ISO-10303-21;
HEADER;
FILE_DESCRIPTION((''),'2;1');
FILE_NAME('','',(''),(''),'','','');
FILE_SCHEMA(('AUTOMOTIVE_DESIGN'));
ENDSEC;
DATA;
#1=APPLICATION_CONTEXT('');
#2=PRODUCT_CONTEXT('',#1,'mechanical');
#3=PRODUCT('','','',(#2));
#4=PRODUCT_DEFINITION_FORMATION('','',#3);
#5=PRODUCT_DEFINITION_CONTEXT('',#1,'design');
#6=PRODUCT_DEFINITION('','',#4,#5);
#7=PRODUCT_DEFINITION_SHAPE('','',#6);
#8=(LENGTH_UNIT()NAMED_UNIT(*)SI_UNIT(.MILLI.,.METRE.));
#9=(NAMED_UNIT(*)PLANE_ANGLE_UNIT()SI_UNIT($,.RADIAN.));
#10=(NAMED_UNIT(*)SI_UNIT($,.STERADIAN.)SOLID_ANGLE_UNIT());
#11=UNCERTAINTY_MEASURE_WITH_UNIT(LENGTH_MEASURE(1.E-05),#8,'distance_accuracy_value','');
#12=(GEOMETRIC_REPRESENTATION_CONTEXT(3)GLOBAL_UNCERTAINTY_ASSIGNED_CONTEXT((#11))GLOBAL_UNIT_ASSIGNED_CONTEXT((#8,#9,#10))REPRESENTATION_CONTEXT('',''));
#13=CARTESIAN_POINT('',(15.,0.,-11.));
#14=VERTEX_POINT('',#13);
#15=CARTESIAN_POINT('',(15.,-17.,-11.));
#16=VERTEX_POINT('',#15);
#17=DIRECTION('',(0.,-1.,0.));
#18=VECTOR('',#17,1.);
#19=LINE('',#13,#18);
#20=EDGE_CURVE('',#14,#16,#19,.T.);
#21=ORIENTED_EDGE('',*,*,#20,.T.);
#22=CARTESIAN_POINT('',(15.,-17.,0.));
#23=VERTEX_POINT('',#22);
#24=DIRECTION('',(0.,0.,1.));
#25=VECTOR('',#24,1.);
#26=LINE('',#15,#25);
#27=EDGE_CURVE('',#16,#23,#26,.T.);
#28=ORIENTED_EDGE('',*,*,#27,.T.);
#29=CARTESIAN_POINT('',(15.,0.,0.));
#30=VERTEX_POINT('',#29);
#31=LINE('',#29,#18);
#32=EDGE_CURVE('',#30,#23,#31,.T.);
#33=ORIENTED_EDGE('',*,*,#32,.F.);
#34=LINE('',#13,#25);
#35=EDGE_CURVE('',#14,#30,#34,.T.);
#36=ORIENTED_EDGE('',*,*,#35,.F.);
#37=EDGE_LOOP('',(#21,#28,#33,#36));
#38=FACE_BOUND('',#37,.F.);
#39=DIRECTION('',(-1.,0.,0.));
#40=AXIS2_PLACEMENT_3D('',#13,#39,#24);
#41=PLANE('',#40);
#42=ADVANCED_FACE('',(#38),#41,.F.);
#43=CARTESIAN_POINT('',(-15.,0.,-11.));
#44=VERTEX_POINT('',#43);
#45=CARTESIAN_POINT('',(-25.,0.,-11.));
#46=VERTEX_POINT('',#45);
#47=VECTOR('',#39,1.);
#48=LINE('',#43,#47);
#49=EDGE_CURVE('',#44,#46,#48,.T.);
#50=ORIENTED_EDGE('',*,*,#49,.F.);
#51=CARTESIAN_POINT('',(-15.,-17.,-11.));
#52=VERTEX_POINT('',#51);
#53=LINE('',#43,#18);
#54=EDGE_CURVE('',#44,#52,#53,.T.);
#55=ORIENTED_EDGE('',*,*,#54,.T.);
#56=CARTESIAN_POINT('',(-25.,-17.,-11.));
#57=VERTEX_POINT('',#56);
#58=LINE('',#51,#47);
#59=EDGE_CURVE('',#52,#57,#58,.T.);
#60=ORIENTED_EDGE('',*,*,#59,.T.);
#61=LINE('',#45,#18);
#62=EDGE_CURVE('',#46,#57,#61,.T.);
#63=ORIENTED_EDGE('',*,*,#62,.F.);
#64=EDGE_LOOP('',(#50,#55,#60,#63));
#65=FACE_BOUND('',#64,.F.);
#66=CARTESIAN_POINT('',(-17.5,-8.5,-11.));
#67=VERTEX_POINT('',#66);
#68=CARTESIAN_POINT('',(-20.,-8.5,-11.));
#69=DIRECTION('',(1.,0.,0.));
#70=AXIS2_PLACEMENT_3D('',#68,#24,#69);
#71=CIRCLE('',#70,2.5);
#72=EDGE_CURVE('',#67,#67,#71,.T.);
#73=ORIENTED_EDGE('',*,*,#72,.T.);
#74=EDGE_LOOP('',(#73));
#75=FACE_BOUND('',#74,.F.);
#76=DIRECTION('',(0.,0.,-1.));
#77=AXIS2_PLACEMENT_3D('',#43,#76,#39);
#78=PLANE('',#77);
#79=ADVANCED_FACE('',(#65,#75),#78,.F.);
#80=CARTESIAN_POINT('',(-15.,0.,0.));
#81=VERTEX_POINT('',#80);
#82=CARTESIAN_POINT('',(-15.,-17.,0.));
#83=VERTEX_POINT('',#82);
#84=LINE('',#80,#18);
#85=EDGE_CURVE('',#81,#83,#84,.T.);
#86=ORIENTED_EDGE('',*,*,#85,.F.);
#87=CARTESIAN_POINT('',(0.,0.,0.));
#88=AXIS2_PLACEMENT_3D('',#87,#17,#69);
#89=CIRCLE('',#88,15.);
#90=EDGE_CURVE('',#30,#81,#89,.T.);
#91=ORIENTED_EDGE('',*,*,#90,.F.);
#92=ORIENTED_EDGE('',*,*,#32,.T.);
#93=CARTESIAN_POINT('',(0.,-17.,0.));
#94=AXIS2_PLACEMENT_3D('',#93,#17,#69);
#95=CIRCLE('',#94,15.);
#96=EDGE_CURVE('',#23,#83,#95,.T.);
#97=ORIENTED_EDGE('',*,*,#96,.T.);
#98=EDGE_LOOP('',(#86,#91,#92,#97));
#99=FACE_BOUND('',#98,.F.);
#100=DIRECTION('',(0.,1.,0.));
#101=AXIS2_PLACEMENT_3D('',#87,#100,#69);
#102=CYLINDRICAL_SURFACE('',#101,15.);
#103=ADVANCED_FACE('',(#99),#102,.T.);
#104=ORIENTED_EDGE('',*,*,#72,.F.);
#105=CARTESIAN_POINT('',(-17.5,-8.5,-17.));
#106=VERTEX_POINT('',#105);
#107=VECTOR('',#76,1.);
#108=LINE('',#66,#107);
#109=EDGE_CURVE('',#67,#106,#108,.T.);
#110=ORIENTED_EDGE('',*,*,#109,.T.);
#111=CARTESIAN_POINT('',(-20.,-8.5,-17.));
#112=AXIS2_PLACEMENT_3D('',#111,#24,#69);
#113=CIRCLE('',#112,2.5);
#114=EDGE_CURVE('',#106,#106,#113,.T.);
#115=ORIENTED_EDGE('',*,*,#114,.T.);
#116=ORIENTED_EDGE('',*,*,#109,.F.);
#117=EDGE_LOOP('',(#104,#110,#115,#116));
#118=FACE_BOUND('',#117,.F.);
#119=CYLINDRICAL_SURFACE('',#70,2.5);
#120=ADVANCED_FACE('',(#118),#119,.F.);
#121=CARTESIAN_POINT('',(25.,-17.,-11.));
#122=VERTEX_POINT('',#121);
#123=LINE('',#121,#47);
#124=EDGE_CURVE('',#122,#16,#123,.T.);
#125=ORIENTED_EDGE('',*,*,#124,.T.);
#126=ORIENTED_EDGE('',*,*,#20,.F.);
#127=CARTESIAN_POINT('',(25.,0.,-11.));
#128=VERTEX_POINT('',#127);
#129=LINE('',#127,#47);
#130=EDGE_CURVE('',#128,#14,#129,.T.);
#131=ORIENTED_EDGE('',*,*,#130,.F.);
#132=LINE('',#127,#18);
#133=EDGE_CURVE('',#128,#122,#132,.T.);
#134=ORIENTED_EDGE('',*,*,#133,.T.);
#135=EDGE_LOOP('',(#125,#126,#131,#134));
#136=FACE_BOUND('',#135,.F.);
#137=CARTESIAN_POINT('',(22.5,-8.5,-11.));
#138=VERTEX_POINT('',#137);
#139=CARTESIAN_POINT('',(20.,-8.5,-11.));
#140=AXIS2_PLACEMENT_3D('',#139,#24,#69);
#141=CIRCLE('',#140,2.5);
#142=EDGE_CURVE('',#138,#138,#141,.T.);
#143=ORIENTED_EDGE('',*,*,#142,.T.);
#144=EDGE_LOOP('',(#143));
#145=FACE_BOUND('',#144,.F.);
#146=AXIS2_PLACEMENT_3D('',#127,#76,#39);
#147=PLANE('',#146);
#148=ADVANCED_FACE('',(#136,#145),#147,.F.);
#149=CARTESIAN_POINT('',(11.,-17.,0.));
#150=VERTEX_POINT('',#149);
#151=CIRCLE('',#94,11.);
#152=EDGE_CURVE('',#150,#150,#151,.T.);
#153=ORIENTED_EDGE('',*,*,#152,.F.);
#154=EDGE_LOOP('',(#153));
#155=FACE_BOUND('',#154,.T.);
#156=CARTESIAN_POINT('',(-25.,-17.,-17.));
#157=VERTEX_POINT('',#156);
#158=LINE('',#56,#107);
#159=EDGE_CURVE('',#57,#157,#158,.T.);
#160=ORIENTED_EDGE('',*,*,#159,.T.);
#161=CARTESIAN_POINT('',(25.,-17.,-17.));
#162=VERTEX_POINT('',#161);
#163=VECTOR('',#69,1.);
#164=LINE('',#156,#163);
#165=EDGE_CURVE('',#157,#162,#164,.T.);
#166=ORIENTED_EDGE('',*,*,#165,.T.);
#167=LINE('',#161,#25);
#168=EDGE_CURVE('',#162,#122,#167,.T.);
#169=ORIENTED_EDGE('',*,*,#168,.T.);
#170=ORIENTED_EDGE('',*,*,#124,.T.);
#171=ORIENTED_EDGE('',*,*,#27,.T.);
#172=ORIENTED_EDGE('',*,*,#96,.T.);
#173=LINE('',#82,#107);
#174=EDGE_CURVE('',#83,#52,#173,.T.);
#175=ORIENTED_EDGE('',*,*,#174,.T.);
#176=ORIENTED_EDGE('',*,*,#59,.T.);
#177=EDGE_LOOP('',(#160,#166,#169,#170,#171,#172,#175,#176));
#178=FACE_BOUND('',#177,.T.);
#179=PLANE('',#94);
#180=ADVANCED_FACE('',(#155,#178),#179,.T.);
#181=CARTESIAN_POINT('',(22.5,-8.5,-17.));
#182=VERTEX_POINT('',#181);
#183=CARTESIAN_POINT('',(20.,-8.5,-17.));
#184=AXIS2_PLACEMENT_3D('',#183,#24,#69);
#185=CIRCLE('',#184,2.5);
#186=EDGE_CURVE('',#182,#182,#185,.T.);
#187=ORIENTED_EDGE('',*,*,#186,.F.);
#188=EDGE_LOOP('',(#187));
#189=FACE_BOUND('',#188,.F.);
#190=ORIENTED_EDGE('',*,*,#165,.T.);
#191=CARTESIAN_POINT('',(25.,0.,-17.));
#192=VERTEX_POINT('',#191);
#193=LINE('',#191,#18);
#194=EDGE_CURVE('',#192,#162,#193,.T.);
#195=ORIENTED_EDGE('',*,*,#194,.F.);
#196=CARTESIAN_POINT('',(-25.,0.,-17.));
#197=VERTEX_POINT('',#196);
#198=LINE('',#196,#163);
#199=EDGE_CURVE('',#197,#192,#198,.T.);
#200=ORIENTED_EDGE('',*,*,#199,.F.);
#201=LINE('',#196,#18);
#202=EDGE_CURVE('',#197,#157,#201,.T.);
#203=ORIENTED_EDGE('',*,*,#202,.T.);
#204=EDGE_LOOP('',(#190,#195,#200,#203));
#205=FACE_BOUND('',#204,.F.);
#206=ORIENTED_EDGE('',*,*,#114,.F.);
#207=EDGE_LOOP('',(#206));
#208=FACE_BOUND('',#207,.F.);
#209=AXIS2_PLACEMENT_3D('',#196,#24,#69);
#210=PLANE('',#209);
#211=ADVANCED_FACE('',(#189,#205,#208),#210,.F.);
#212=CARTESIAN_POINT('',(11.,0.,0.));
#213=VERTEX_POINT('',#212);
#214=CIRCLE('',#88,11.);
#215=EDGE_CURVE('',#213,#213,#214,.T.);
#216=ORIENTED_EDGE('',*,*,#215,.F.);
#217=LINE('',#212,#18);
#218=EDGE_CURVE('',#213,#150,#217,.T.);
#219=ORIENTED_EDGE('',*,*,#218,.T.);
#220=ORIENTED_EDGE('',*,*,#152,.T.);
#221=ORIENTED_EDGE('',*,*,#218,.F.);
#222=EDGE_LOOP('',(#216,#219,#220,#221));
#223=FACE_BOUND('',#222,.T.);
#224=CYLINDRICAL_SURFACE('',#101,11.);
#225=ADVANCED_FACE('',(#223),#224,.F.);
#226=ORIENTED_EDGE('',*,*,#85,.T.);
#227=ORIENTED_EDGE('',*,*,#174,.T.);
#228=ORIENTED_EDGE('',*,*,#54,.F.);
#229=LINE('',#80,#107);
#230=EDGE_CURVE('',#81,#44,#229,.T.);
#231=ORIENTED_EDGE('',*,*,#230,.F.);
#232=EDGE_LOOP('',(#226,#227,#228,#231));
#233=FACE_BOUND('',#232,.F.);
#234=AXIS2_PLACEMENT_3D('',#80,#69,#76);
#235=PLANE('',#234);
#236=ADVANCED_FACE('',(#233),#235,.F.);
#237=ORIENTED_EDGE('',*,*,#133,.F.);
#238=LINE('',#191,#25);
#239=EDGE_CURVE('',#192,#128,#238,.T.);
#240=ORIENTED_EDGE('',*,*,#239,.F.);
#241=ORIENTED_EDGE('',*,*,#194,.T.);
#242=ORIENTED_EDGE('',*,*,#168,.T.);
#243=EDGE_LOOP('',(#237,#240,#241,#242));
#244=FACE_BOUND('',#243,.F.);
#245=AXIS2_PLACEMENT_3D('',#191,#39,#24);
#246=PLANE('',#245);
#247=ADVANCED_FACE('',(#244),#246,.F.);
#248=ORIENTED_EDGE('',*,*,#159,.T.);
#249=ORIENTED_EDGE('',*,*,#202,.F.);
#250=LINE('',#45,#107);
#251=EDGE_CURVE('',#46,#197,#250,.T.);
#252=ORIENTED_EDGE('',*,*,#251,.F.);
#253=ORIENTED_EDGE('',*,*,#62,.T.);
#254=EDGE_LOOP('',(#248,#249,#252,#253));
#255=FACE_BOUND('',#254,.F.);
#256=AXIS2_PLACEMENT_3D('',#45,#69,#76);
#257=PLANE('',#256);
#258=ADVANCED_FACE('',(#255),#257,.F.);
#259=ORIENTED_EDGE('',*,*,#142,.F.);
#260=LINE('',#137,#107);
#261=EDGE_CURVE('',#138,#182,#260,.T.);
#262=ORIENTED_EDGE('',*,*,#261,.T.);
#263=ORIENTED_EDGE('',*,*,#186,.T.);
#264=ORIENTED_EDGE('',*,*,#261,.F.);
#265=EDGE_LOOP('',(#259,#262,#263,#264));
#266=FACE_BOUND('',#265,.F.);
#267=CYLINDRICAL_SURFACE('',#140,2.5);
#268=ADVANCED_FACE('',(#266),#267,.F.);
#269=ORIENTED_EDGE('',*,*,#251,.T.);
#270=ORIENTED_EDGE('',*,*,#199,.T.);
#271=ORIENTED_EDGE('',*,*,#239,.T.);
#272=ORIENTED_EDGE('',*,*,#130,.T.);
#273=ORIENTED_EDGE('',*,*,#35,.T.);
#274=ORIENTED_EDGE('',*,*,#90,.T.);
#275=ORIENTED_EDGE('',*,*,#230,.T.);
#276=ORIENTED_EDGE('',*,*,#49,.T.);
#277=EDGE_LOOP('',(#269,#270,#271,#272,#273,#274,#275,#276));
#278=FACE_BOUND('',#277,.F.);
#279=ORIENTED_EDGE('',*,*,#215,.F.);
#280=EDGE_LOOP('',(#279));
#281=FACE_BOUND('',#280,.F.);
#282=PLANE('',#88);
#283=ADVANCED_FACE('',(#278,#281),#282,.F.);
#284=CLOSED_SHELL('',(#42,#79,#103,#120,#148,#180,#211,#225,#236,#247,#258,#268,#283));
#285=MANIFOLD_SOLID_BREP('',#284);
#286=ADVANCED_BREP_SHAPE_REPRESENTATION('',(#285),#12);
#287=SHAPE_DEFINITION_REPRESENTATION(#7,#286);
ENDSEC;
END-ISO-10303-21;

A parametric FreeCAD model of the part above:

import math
import FreeCAD as App
import Part
import Sketcher

V = App.Vector

doc = App.newDocument("Part")
params = doc.addObject("Spreadsheet::Sheet", "Params")
for row, (alias, value) in enumerate([
    ("sketch1_diameter", "22 mm"),
    ("sketch1_radius", "15 mm"),
    ("sketch1_width", "10 mm"),
    ("sketch1_height", "11 mm"),
    ("sketch1_height2", "6 mm"),
    ("pad1_length", "17 mm"),
    ("sketch2_diameter", "5 mm"),
], start=1):
    params.set(f"A{row}", alias)
    params.set(f"B{row}", "=" + value)
    params.setAlias(f"B{row}", alias)

body = doc.addObject("PartDesign::Body", "Body")

# Sketch on XZ plane
sketch1 = body.newObject("Sketcher::SketchObject", "Sketch")
sketch1.AttachmentSupport = (doc.getObject("XZ_Plane"), [""])
sketch1.MapMode = "FlatFace"
sketch1.addGeometry([
    Part.ArcOfCircle(Part.Circle(V(0, 0, 0), V(0, 0, 1), 15), math.radians(0), math.radians(180)),  # 0
    Part.LineSegment(V(-15, 0, 0), V(-15, -11, 0)),  # 1
    Part.LineSegment(V(-15, -11, 0), V(-25, -11, 0)),  # 2
    Part.LineSegment(V(-25, -11, 0), V(-25, -17, 0)),  # 3
    Part.LineSegment(V(-25, -17, 0), V(25, -17, 0)),  # 4
    Part.LineSegment(V(25, -17, 0), V(25, -11, 0)),  # 5
    Part.LineSegment(V(25, -11, 0), V(15, -11, 0)),  # 6
    Part.LineSegment(V(15, -11, 0), V(15, 0, 0)),  # 7
    Part.Circle(V(0, 0, 0), V(0, 0, 1), 11),  # 8
], False)
sketch1.addConstraint([
    Sketcher.Constraint("Tangent", 0, 2, 1, 1),
    Sketcher.Constraint("Coincident", 1, 2, 2, 1),
    Sketcher.Constraint("Coincident", 2, 2, 3, 1),
    Sketcher.Constraint("Coincident", 3, 2, 4, 1),
    Sketcher.Constraint("Coincident", 4, 2, 5, 1),
    Sketcher.Constraint("Coincident", 5, 2, 6, 1),
    Sketcher.Constraint("Coincident", 6, 2, 7, 1),
    Sketcher.Constraint("Tangent", 7, 2, 0, 1),
    Sketcher.Constraint("Vertical", 1),
    Sketcher.Constraint("Horizontal", 2),
    Sketcher.Constraint("Vertical", 3),
    Sketcher.Constraint("Horizontal", 4),
    Sketcher.Constraint("Vertical", 5),
    Sketcher.Constraint("Horizontal", 6),
    Sketcher.Constraint("Vertical", 7),
    Sketcher.Constraint("Coincident", 0, 3, -1, 1),
    Sketcher.Constraint("Coincident", 8, 3, -1, 1),
    Sketcher.Constraint("Symmetric", 2, 2, 5, 2, -2),
    Sketcher.Constraint("Diameter", 8, 22.0),
    Sketcher.Constraint("Radius", 0, 15.0),
    Sketcher.Constraint("DistanceX", 2, 2, 2, 1, 10.0),
    Sketcher.Constraint("DistanceY", 1, 2, 1, 1, 11.0),
    Sketcher.Constraint("DistanceY", 3, 2, 3, 1, 6.0),
])
sketch1.setExpression("Constraints[18]", "Params.sketch1_diameter")
sketch1.setExpression("Constraints[19]", "Params.sketch1_radius")
sketch1.setExpression("Constraints[20]", "Params.sketch1_width")
sketch1.setExpression("Constraints[21]", "Params.sketch1_height")
sketch1.setExpression("Constraints[22]", "Params.sketch1_height2")
pad1 = body.newObject("PartDesign::Pad", "Pad")
pad1.Profile = sketch1
pad1.setExpression("Length", "Params.pad1_length")

# Sketch on XY plane
sketch2 = body.newObject("Sketcher::SketchObject", "Sketch001")
sketch2.AttachmentSupport = (doc.getObject("XY_Plane"), [""])
sketch2.MapMode = "FlatFace"
sketch2.AttachmentOffset = App.Placement(V(0, 0, -11), App.Rotation())
sketch2.addGeometry([
    Part.Circle(V(-20, -8.5, 0), V(0, 0, 1), 2.5),
    Part.Circle(V(20, -8.5, 0), V(0, 0, 1), 2.5),
], False)
sketch2.addConstraint([
    Sketcher.Constraint("Equal", 0, 1),
    Sketcher.Constraint("Symmetric", 0, 3, 1, 3, -2),
    Sketcher.Constraint("Diameter", 0, 5.0),
    Sketcher.Constraint("DistanceX", 0, 3, -1, 1, 20.0),
    Sketcher.Constraint("DistanceY", 0, 3, -1, 1, 8.5),
])
sketch2.setExpression("Constraints[2]", "Params.sketch2_diameter")
pocket1 = body.newObject("PartDesign::Pocket", "Pocket")
pocket1.Profile = sketch2
pocket1.Type = "ThroughAll"

doc.recompute()
